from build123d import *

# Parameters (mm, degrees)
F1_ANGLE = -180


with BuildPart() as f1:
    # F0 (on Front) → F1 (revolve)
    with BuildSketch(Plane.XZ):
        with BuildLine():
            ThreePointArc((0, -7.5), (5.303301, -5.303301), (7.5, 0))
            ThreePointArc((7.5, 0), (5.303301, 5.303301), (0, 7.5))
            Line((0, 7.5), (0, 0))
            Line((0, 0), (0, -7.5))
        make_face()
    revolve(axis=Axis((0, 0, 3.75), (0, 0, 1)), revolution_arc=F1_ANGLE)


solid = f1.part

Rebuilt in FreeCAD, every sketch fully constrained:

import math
import FreeCAD as App
import Part
import Sketcher

V = App.Vector
Q = App.Units.Quantity

doc = App.newDocument("Part")
body = doc.addObject("PartDesign::Body", "Body")

# Sketch on XZ plane
sketch1 = doc.addObject("Sketcher::SketchObject", "Sketch")
body.addObject(sketch1)
sketch1.AttachmentSupport = (doc.XZ_Plane, [""])
sketch1.MapMode = "FlatFace"
sketch1.addGeometry(Part.ArcOfCircle(Part.Circle(V(0, 0, 0), V(0, 0, 1), 7.5), math.radians(-90.000004), math.radians(0.000004)), False)
sketch1.addGeometry(Part.ArcOfCircle(Part.Circle(V(0, 0, 0), V(0, 0, 1), 7.5), math.radians(-0.000004), math.radians(90.000004)), False)
sketch1.addGeometry(Part.LineSegment(V(0, 7.5, 0), V(0, -7.5, 0)), False)
sketch1.addConstraint(Sketcher.Constraint("Tangent", 0, 2, 1, 1))
sketch1.addConstraint(Sketcher.Constraint("Coincident", 1, 2, 2, 1))
sketch1.addConstraint(Sketcher.Constraint("Coincident", 2, 2, 0, 1))
sketch1.addConstraint(Sketcher.Constraint("Vertical", 2))
sketch1.addConstraint(Sketcher.Constraint("Coincident", 0, 3, -1, 1))
sketch1.addConstraint(Sketcher.Constraint("Equal", 0, 1))
sketch1.addConstraint(Sketcher.Constraint("PointOnObject", 0, 2, -1))
sketch1.addConstraint(Sketcher.Constraint("PointOnObject", 1, 2, -2))
sketch1.addConstraint(Sketcher.Constraint("Radius", 0, Q("7.5 mm")))
revolution = doc.addObject("PartDesign::Revolution", "Revolution")
body.addObject(revolution)
revolution.Profile = sketch1
revolution.ReferenceAxis = (sketch1, ["V_Axis"])
revolution.Angle = 180
revolution.Reversed = True

doc.recompute()
